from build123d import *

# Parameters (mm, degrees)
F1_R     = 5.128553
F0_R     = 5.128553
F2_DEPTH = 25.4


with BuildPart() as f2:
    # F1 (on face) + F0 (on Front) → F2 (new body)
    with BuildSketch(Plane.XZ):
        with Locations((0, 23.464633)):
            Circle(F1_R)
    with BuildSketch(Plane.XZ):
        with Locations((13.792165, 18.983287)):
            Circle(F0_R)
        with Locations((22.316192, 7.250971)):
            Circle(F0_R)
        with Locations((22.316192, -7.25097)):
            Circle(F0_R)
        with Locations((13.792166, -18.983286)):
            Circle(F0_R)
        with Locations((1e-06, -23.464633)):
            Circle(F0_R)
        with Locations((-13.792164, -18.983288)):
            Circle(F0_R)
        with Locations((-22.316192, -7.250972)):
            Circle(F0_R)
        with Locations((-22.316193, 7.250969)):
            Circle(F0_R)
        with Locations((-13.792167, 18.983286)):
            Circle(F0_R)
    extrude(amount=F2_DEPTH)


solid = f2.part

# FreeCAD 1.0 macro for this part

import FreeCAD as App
import Part
import Sketcher

V = App.Vector
Q = App.Units.Quantity

doc = App.newDocument("Part")
body = doc.addObject("PartDesign::Body", "Body")
body.AllowCompound = True

# Sketch on XZ plane
sketch1 = doc.addObject("Sketcher::SketchObject", "Sketch")
body.addObject(sketch1)
sketch1.AttachmentSupport = (doc.XZ_Plane, [""])
sketch1.MapMode = "FlatFace"
sketch1.addGeometry([
    Part.Circle(V(0, 23, 0), V(0, 0, 1), 5),  # 0
    Part.Circle(V(14, 19, 0), V(0, 0, 1), 5),  # 1
    Part.Circle(V(22, 7, 0), V(0, 0, 1), 5),  # 2
    Part.Circle(V(22, -7, 0), V(0, 0, 1), 5),  # 3
    Part.Circle(V(14, -19, 0), V(0, 0, 1), 5),  # 4
    Part.Circle(V(0, -23, 0), V(0, 0, 1), 5),  # 5
    Part.Circle(V(-14, -19, 0), V(0, 0, 1), 5),  # 6
    Part.Circle(V(-22, -7, 0), V(0, 0, 1), 5),  # 7
    Part.Circle(V(-22, 7, 0), V(0, 0, 1), 5),  # 8
    Part.Circle(V(-14, 19, 0), V(0, 0, 1), 5),  # 9
], False)
sketch1.addConstraint([
    Sketcher.Constraint("Equal", 0, 1),
    Sketcher.Constraint("Equal", 1, 2),
    Sketcher.Constraint("Equal", 2, 3),
    Sketcher.Constraint("Equal", 3, 4),
    Sketcher.Constraint("Equal", 4, 5),
    Sketcher.Constraint("Equal", 5, 6),
    Sketcher.Constraint("Equal", 6, 7),
    Sketcher.Constraint("Equal", 7, 8),
    Sketcher.Constraint("Equal", 8, 9),
    Sketcher.Constraint("Symmetric", 0, 3, 5, 3, -1, 1),
    Sketcher.Constraint("Symmetric", 1, 3, 6, 3, -1, 1),
    Sketcher.Constraint("Symmetric", 2, 3, 7, 3, -1, 1),
    Sketcher.Constraint("Symmetric", 3, 3, 8, 3, -1, 1),
    Sketcher.Constraint("Symmetric", 4, 3, 9, 3, -1, 1),
    Sketcher.Constraint("Symmetric", 4, 3, 6, 3, -2),
    Sketcher.Constraint("Symmetric", 3, 3, 7, 3, -2),
    Sketcher.Constraint("PointOnObject", 0, 3, -2),
    Sketcher.Constraint("Diameter", 0, Q("10.257106 mm")),
    Sketcher.Constraint("DistanceY", -1, 1, 2, 3, Q("7.250971 mm")),
    Sketcher.Constraint("DistanceY", 6, 3, -1, 1, Q("18.983288 mm")),
    Sketcher.Constraint("DistanceY", 2, 3, 0, 3, Q("16.213662 mm")),
    Sketcher.Constraint("DistanceX", 5, 3, 3, 3, Q("22.316191 mm")),
    Sketcher.Constraint("DistanceX", 6, 3, 4, 3, Q("27.58433 mm")),
])
pad1 = doc.addObject("PartDesign::Pad", "Pad")
body.addObject(pad1)
pad1.Profile = sketch1
pad1.Length = Q("1 in")

doc.recompute()
